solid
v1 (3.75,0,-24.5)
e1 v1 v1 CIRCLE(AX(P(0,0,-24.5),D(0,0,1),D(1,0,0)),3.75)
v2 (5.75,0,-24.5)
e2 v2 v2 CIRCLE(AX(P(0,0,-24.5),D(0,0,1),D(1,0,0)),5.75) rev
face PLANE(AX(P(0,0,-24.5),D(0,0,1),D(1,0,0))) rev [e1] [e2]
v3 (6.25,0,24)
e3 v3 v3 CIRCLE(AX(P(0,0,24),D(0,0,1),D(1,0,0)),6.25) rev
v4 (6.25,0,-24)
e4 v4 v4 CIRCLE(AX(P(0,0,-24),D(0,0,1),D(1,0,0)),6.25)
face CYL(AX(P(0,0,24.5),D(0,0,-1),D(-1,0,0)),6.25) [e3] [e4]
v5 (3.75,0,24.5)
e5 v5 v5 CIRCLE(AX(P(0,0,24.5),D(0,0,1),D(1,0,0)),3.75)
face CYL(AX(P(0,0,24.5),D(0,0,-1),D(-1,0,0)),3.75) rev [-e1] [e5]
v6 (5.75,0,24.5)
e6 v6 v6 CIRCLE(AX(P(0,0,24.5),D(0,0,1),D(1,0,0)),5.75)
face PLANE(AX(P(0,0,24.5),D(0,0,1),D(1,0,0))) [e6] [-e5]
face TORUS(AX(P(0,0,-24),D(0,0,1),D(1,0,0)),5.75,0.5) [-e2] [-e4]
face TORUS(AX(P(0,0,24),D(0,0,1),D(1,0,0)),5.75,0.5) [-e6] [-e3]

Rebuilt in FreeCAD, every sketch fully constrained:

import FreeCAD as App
import Part
import Sketcher
from FreeCAD import Vector


def edges_at(feature, points):
    """Names of the edges that pass closest to the given points."""
    edges = feature.Shape.Edges
    near = lambda p: min(range(len(edges)), key=lambda i: edges[i].distToShape(Part.Vertex(*p))[0])
    return sorted({f"Edge{near(p) + 1}" for p in points})

doc = App.newDocument("Part")
body = doc.addObject("PartDesign::Body", "Body")

# Sketch on XY plane
sketch1 = body.newObject("Sketcher::SketchObject", "Sketch")
sketch1.AttachmentSupport = (doc.getObject("XY_Plane"), [""])
sketch1.MapMode = "FlatFace"
sketch1.addGeometry(Part.Circle(Vector(0, 0, 0), Vector(0, 0, 1), 6.2), False)
sketch1.addGeometry(Part.Circle(Vector(0, 0, 0), Vector(0, 0, 1), 3.8), False)
sketch1.addConstraint(Sketcher.Constraint("Coincident", 0, 3, -1, 1))
sketch1.addConstraint(Sketcher.Constraint("Coincident", 1, 3, -1, 1))
sketch1.addConstraint(Sketcher.Constraint("Diameter", 0, 12.5))
sketch1.addConstraint(Sketcher.Constraint("Diameter", 1, 7.5))
pad1 = body.newObject("PartDesign::Pad", "Pad")
pad1.Profile = sketch1
pad1.Length = 49
pad1.Midplane = True
doc.recompute()

fillet = body.newObject("PartDesign::Fillet", "Fillet")
fillet.Base = (pad1, edges_at(pad1, [(-6.25, 0, -24.5), (-6.25, 0, 24.5)]))
fillet.Radius = 0.5

doc.recompute()
